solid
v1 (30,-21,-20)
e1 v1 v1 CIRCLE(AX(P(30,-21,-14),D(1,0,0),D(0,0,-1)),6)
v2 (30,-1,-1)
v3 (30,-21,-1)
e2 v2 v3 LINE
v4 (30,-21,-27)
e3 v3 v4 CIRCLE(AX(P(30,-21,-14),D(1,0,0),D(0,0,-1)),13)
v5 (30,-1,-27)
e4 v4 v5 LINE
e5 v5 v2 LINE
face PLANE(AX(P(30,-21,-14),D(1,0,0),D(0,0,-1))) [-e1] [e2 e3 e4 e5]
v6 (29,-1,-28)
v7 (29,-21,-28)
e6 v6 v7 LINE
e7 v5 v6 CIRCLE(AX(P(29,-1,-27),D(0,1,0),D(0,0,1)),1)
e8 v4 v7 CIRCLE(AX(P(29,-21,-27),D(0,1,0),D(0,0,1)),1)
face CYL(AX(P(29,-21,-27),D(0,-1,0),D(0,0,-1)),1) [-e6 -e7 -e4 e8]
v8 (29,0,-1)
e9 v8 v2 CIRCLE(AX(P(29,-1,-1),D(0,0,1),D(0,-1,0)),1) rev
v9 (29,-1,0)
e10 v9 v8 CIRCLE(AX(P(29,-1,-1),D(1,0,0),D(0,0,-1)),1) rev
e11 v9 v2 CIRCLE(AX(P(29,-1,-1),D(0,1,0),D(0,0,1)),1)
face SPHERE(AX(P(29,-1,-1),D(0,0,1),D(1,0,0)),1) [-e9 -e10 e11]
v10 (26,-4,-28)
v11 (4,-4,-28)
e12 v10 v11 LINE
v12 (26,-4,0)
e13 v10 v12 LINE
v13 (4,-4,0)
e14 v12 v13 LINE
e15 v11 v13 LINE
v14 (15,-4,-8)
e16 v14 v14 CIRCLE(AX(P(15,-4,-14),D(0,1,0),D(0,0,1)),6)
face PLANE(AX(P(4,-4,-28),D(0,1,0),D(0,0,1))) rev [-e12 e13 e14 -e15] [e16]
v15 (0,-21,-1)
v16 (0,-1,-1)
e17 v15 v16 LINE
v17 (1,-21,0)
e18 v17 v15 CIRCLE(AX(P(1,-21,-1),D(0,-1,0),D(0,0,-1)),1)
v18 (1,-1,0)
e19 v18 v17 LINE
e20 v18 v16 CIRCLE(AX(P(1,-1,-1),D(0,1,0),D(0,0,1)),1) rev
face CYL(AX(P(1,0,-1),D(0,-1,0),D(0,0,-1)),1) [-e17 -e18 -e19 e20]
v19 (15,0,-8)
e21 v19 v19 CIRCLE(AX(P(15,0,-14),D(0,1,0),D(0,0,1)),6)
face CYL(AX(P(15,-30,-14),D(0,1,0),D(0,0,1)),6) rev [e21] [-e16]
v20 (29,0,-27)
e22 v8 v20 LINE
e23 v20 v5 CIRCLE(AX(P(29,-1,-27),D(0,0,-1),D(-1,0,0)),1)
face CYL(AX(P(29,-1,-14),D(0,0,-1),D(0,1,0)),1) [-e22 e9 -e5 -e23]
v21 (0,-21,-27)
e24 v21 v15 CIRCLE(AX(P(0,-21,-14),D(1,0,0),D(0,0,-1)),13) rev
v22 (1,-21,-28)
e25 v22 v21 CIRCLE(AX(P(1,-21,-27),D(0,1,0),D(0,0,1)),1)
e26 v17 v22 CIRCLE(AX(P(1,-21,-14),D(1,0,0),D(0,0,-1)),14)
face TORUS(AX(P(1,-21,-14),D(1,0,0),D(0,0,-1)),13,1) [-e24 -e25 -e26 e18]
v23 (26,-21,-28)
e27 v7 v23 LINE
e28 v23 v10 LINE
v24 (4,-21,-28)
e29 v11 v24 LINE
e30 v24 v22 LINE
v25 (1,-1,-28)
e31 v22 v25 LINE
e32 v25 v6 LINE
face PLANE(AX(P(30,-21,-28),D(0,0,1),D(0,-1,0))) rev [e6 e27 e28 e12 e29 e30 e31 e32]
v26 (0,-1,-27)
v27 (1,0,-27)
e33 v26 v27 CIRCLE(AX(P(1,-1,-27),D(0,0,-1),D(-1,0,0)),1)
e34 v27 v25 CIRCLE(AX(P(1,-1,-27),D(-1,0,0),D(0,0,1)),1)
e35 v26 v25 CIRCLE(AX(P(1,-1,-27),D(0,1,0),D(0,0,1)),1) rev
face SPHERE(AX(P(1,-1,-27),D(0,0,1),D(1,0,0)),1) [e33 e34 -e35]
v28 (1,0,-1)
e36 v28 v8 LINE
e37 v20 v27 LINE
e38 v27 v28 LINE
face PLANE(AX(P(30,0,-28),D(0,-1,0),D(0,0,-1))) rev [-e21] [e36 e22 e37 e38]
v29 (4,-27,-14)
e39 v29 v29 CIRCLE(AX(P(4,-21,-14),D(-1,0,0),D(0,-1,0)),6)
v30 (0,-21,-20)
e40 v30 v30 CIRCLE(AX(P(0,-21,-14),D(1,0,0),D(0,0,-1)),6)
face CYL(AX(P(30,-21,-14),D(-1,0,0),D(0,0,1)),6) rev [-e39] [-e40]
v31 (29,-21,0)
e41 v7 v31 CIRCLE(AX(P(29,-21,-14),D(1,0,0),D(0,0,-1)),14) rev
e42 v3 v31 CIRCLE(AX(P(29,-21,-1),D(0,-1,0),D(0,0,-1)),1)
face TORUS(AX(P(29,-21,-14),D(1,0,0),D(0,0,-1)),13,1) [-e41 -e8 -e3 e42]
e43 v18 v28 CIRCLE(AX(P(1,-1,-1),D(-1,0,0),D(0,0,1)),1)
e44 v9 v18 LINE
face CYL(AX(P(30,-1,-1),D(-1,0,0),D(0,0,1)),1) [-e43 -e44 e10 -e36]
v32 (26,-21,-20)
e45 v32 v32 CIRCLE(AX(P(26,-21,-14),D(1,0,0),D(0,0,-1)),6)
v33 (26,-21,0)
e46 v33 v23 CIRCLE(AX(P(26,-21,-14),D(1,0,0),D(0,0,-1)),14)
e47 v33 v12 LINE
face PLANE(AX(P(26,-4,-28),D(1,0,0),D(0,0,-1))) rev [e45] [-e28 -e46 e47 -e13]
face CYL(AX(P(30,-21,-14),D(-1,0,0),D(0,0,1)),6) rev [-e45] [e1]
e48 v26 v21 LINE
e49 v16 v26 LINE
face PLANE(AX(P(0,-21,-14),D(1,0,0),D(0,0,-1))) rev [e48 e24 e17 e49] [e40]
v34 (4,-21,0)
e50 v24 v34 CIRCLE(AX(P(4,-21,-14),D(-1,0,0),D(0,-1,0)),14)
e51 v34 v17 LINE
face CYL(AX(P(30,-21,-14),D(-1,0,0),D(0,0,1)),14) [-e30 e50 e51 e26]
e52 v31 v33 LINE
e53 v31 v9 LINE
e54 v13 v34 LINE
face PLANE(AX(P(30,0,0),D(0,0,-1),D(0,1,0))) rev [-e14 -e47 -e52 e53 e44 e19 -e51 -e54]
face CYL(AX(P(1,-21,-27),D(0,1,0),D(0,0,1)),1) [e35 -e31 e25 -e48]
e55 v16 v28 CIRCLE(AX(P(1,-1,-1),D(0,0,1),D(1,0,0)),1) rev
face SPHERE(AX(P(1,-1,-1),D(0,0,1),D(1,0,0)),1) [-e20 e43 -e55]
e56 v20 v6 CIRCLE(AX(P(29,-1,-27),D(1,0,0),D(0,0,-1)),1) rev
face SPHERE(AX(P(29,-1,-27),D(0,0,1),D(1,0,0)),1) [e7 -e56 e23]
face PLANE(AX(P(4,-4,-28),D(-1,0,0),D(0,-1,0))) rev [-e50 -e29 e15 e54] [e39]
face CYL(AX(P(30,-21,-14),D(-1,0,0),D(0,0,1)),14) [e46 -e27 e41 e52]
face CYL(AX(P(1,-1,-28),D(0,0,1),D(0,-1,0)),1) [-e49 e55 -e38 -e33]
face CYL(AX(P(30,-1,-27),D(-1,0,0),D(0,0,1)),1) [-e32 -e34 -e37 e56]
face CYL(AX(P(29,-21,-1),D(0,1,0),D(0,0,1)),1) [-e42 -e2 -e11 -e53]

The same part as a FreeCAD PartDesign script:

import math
import FreeCAD as App
import Part
import Sketcher

V = App.Vector


def edges_at(feature, points):
    """Names of the edges that pass closest to the given points."""
    edges = feature.Shape.Edges
    near = lambda p: min(range(len(edges)), key=lambda i: edges[i].distToShape(Part.Vertex(*p))[0])
    return sorted({f"Edge{near(p) + 1}" for p in points})


def add_polygon(sketch, points):
    """Adds a closed chain of lines whose ends are joined by coincident constraints."""
    first, n = sketch.GeometryCount, len(points)
    for a, b in zip(points, points[1:] + points[:1]):
        sketch.addGeometry(Part.LineSegment(App.Vector(*a, 0), App.Vector(*b, 0)), False)
    for i in range(n):
        sketch.addConstraint(Sketcher.Constraint("Coincident", first + i, 2, first + (i + 1) % n, 1))

doc = App.newDocument("Part")
body = doc.addObject("PartDesign::Body", "Body")

# Sketch on YZ plane
sketch1 = body.newObject("Sketcher::SketchObject", "Sketch")
sketch1.AttachmentSupport = (doc.getObject("YZ_Plane"), [""])
sketch1.MapMode = "FlatFace"
sketch1.addGeometry([
    Part.LineSegment(V(0, 0, 0), V(-21, 0, 0)),  # 0
    Part.ArcOfCircle(Part.Circle(V(-21, -14, 0), V(0, 0, 1), 14), math.radians(90), math.radians(270)),  # 1
    Part.LineSegment(V(-21, -28, 0), V(0, -28, 0)),  # 2
    Part.LineSegment(V(0, -28, 0), V(0, 0, 0)),  # 3
    Part.Circle(V(-21, -14, 0), V(0, 0, 1), 6),  # 4
], False)
sketch1.addConstraint([
    Sketcher.Constraint("Tangent", 0, 2, 1, 1),
    Sketcher.Constraint("Tangent", 1, 2, 2, 1),
    Sketcher.Constraint("Coincident", 2, 2, 3, 1),
    Sketcher.Constraint("Coincident", 3, 2, 0, 1),
    Sketcher.Constraint("Horizontal", 0),
    Sketcher.Constraint("Horizontal", 2),
    Sketcher.Constraint("Vertical", 3),
    Sketcher.Constraint("Coincident", 3, 2, -1, 1),
    Sketcher.Constraint("Coincident", 4, 3, 1, 3),
    Sketcher.Constraint("Diameter", 4, 12.0),
    Sketcher.Constraint("Radius", 1, 14.0),
    Sketcher.Constraint("DistanceX", 0, 2, 0, 1, 21.0),
])
pad1 = body.newObject("PartDesign::Pad", "Pad")
pad1.Profile = sketch1
pad1.Length = 30

# Sketch on XY plane
sketch2 = body.newObject("Sketcher::SketchObject", "Sketch001")
sketch2.AttachmentSupport = (doc.getObject("XY_Plane"), [""])
sketch2.MapMode = "FlatFace"
add_polygon(sketch2, [(4, -4), (4, -35), (26, -35), (26, -4)])  # lines 0-3
sketch2.addConstraint([
    Sketcher.Constraint("Vertical", 0),
    Sketcher.Constraint("Horizontal", 1),
    Sketcher.Constraint("Vertical", 2),
    Sketcher.Constraint("Horizontal", 3),
    Sketcher.Constraint("DistanceX", 1, 1, 1, 2, 22.0),
    Sketcher.Constraint("DistanceY", 0, 2, 0, 1, 31.0),
    Sketcher.Constraint("DistanceX", -1, 1, 0, 2, 4.0),
    Sketcher.Constraint("DistanceY", 0, 2, -1, 1, 35.0),
])
pocket1 = body.newObject("PartDesign::Pocket", "Pocket")
pocket1.Profile = sketch2
pocket1.Type = "ThroughAll"

# Sketch on XZ plane
sketch3 = body.newObject("Sketcher::SketchObject", "Sketch002")
sketch3.AttachmentSupport = (doc.getObject("XZ_Plane"), [""])
sketch3.MapMode = "FlatFace"
sketch3.addGeometry(Part.Circle(V(15, -14, 0), V(0, 0, 1), 6), False)
sketch3.addConstraint([
    Sketcher.Constraint("Diameter", 0, 12.0),
    Sketcher.Constraint("DistanceX", -1, 1, 0, 3, 15.0),
    Sketcher.Constraint("DistanceY", 0, 3, -1, 1, 14.0),
])
pocket2 = body.newObject("PartDesign::Pocket", "Pocket001")
pocket2.Profile = sketch3
pocket2.Length = 30
pocket2.Reversed = True
doc.recompute()

fillet = body.newObject("PartDesign::Fillet", "Fillet")
fillet.Base = (pocket2, edges_at(pocket2, [
    (30, -35, -14),
    (30, -10.5, -28),
    (30, 0, -14),
    (0, -10.5, -28),
    (0, -35, -14),
    (0, -10.5, 0),
    (0, 0, -14),
    (30, -10.5, 0),
    (15, 0, -28),
    (15, 0, 0),
]))
fillet.Radius = 1

doc.recompute()
